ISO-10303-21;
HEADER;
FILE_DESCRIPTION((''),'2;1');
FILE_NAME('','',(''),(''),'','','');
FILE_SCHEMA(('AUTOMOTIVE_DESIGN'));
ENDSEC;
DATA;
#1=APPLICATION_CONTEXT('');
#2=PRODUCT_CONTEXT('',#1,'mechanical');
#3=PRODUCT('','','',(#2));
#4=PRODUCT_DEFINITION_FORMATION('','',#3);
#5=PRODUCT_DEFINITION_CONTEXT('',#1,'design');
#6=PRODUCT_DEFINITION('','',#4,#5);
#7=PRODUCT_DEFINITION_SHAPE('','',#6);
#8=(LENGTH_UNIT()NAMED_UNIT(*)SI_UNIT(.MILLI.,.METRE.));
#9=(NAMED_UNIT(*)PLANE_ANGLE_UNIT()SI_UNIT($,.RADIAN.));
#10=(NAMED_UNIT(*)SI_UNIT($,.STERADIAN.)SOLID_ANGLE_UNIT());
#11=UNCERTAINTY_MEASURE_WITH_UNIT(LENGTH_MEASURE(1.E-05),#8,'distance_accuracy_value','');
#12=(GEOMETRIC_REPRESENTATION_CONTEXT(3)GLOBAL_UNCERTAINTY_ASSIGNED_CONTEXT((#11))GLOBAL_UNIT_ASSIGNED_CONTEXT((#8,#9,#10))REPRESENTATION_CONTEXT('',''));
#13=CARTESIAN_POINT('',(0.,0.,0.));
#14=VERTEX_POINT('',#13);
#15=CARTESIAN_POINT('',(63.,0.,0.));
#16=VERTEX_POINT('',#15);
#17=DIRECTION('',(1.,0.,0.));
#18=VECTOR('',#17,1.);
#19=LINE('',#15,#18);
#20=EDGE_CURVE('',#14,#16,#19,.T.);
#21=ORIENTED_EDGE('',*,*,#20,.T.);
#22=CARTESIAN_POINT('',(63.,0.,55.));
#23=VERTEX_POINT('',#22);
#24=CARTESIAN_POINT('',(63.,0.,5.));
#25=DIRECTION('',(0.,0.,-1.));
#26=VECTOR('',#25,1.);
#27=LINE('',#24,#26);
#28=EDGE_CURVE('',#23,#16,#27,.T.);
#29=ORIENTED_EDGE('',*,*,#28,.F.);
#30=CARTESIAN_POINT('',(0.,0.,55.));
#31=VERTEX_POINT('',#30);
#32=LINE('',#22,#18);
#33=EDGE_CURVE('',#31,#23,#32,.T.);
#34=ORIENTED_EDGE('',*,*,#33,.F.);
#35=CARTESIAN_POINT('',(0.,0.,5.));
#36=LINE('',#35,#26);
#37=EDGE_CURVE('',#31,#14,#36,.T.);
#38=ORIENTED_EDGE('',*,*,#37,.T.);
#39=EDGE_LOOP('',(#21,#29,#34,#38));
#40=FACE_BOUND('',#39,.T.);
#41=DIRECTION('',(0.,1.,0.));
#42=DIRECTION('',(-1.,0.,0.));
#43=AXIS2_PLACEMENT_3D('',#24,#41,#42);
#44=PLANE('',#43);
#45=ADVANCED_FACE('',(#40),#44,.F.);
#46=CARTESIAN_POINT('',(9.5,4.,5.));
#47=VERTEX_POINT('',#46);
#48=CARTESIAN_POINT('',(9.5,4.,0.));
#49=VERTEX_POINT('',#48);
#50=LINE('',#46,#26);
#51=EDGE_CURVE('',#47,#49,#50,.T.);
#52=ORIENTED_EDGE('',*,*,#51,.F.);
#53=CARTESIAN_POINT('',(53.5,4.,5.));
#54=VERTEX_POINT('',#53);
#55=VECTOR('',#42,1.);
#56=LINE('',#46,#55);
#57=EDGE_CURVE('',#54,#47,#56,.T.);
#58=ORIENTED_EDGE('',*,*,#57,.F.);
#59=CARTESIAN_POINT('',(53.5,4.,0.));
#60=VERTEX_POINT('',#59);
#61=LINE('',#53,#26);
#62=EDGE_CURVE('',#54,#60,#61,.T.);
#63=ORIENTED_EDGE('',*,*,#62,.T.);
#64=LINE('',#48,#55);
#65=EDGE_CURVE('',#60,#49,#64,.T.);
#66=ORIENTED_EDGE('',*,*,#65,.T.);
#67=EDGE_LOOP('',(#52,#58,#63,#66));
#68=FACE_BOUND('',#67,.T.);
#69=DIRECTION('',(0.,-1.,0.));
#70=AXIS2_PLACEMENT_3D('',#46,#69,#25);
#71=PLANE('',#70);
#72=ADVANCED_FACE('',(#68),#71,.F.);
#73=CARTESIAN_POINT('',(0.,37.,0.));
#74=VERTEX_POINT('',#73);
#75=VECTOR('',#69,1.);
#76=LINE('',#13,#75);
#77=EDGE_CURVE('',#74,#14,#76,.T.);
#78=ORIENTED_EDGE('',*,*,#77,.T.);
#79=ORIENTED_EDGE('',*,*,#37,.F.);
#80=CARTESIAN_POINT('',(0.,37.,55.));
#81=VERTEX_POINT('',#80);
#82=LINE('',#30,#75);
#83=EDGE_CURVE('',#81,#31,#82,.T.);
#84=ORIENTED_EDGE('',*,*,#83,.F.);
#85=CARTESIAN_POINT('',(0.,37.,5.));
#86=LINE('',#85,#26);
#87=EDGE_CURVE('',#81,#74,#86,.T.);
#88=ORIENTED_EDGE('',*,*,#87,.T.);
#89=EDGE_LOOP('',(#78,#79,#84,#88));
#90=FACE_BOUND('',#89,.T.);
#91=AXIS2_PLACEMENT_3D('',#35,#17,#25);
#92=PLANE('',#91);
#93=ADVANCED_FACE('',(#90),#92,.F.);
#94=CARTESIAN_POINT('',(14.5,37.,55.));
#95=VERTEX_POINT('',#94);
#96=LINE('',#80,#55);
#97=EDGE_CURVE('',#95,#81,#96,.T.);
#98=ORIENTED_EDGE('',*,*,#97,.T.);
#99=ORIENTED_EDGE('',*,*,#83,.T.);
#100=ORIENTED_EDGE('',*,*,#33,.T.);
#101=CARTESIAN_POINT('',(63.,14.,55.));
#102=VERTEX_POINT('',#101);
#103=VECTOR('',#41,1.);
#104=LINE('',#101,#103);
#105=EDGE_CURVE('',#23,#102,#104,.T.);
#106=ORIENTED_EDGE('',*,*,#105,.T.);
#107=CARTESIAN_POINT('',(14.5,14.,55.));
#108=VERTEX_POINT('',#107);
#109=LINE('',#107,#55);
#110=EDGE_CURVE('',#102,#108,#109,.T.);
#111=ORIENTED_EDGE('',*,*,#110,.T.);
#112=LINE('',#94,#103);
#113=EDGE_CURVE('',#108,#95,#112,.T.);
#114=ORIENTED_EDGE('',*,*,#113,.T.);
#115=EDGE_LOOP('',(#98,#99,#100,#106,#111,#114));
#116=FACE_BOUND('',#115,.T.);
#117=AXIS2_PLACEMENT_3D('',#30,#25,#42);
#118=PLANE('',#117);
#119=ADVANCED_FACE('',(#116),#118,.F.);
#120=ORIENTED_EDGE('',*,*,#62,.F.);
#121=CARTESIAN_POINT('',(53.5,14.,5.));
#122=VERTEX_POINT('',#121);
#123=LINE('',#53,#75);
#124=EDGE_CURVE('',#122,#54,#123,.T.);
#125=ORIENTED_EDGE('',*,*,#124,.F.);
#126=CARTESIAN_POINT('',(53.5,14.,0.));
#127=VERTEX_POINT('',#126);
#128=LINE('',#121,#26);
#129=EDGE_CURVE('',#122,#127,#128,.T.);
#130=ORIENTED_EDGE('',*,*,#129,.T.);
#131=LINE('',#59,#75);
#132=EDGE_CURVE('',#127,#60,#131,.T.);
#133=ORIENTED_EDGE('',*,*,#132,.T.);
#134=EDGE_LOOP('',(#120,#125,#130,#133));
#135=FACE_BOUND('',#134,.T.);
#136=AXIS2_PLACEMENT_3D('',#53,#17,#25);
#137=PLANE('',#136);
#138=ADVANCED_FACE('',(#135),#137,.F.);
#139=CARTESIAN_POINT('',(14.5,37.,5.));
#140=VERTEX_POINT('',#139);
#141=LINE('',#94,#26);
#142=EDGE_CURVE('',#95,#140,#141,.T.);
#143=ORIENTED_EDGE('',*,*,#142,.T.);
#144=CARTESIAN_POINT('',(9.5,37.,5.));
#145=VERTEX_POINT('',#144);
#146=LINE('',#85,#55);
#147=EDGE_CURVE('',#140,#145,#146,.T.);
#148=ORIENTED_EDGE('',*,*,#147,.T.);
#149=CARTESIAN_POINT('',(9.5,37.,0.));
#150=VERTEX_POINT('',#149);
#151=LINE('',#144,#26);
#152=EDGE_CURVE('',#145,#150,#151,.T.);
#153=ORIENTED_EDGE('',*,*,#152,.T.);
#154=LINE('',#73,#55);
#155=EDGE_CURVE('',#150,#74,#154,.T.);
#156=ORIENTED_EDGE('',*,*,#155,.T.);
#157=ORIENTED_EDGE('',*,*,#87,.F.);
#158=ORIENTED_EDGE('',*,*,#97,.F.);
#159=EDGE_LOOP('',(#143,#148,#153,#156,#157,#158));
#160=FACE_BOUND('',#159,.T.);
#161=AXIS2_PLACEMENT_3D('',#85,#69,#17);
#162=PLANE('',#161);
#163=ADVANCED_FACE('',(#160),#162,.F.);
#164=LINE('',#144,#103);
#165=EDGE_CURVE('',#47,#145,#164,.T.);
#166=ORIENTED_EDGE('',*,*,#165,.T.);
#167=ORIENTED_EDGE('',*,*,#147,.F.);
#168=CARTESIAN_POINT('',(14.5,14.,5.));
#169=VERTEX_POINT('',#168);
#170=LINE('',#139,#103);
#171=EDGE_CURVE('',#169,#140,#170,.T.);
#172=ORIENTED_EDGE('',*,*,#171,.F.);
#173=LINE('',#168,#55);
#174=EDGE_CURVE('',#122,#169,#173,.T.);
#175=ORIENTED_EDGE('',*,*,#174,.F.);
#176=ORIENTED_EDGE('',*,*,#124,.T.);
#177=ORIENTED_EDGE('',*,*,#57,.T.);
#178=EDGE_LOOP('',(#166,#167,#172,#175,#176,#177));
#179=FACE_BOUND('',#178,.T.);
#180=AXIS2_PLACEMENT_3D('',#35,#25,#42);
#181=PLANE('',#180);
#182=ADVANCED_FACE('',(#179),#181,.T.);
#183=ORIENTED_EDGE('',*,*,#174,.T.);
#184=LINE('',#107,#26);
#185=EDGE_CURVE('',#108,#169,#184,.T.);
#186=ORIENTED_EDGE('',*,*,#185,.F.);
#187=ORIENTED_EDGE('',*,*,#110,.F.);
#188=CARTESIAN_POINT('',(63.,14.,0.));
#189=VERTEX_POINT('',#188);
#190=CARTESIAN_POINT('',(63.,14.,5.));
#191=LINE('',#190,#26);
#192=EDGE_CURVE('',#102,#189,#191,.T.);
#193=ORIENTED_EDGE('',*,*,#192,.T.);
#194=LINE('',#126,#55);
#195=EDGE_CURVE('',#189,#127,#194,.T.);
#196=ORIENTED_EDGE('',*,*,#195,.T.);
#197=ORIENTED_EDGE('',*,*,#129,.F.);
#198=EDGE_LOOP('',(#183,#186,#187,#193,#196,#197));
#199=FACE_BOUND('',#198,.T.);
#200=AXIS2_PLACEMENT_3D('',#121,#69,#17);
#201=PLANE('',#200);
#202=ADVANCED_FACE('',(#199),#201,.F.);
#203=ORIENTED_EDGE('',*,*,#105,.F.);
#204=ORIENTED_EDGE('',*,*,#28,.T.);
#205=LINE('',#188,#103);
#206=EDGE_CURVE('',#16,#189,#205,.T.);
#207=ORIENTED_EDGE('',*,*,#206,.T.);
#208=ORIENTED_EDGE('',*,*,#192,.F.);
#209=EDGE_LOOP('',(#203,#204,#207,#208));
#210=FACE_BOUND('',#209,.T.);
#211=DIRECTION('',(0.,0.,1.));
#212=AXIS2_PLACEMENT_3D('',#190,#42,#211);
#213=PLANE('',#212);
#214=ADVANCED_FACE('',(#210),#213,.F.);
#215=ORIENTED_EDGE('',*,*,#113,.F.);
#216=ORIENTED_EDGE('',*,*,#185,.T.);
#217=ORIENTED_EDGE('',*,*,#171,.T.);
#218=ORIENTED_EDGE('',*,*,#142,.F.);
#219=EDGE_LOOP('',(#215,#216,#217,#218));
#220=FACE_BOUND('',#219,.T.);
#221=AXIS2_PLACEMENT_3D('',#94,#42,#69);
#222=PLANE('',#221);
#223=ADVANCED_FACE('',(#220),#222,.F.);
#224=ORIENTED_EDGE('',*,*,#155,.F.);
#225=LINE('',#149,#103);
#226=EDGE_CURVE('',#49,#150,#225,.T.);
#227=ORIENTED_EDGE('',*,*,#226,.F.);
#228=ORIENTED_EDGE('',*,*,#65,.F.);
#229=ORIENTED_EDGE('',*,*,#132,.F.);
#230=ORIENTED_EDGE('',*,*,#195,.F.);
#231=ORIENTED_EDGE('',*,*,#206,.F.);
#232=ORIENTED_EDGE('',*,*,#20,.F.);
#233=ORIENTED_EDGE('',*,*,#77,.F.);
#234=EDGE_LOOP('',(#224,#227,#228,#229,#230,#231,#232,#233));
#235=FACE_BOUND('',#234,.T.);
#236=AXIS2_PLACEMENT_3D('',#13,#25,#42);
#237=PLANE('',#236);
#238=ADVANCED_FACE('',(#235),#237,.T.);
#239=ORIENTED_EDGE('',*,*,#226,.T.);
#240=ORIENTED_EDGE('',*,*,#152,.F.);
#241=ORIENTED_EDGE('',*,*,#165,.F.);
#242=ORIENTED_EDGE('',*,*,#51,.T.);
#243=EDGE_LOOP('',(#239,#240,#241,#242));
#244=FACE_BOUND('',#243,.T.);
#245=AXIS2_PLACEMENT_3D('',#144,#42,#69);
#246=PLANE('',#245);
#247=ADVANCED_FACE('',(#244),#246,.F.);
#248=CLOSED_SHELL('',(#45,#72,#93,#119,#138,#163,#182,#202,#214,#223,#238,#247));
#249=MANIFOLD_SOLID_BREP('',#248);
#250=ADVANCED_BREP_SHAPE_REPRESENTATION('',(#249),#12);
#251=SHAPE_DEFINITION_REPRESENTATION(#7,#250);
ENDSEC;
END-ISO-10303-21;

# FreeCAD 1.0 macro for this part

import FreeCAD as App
import Part
import Sketcher

V = App.Vector


def add_polygon(sketch, points):
    """Adds a closed chain of lines whose ends are joined by coincident constraints."""
    first, n = sketch.GeometryCount, len(points)
    for a, b in zip(points, points[1:] + points[:1]):
        sketch.addGeometry(Part.LineSegment(App.Vector(*a, 0), App.Vector(*b, 0)), False)
    for i in range(n):
        sketch.addConstraint(Sketcher.Constraint("Coincident", first + i, 2, first + (i + 1) % n, 1))

doc = App.newDocument("Part")
body = doc.addObject("PartDesign::Body", "Body")

# Sketch on XY plane
sketch1 = body.newObject("Sketcher::SketchObject", "Sketch")
sketch1.AttachmentSupport = (doc.getObject("XY_Plane"), [""])
sketch1.MapMode = "FlatFace"
add_polygon(sketch1, [(0, 37), (0, 0), (63, 0), (63, 14), (54, 14), (54, 4), (10, 4), (10, 37)])  # lines 0-7
sketch1.addConstraint([
    Sketcher.Constraint("Vertical", 0),
    Sketcher.Constraint("Horizontal", 1),
    Sketcher.Constraint("Vertical", 2),
    Sketcher.Constraint("Horizontal", 3),
    Sketcher.Constraint("Vertical", 4),
    Sketcher.Constraint("Horizontal", 5),
    Sketcher.Constraint("Vertical", 6),
    Sketcher.Constraint("Horizontal", 7),
    Sketcher.Constraint("Coincident", 0, 2, -1, 1),
    Sketcher.Constraint("Equal", 3, 7),
    Sketcher.Constraint("DistanceX", 1, 1, 1, 2, 63.0),
    Sketcher.Constraint("DistanceX", 5, 2, 5, 1, 44.0),
    Sketcher.Constraint("DistanceY", 0, 2, 0, 1, 37.0),
    Sketcher.Constraint("DistanceY", 2, 1, 2, 2, 14.0),
    Sketcher.Constraint("DistanceY", 4, 2, 4, 1, 10.0),
])
pad1 = body.newObject("PartDesign::Pad", "Pad")
pad1.Profile = sketch1
pad1.Length = 5

# Sketch on XY plane
sketch2 = body.newObject("Sketcher::SketchObject", "Sketch001")
sketch2.AttachmentSupport = (doc.getObject("XY_Plane"), [""])
sketch2.MapMode = "FlatFace"
sketch2.AttachmentOffset = App.Placement(V(0, 0, 5), App.Rotation())
add_polygon(sketch2, [(14, 37), (0, 37), (0, 0), (63, 0), (63, 14), (14, 14)])  # lines 0-5
sketch2.addConstraint([
    Sketcher.Constraint("Horizontal", 0),
    Sketcher.Constraint("Vertical", 1),
    Sketcher.Constraint("Horizontal", 2),
    Sketcher.Constraint("Vertical", 3),
    Sketcher.Constraint("Horizontal", 4),
    Sketcher.Constraint("Vertical", 5),
    Sketcher.Constraint("Coincident", 1, 2, -1, 1),
    Sketcher.Constraint("DistanceX", 2, 1, 2, 2, 63.0),
    Sketcher.Constraint("DistanceY", 1, 2, 1, 1, 37.0),
    Sketcher.Constraint("DistanceY", 3, 1, 3, 2, 14.0),
    Sketcher.Constraint("DistanceX", 0, 2, 0, 1, 14.5),
])
pad2 = body.newObject("PartDesign::Pad", "Pad001")
pad2.Profile = sketch2
pad2.Length = 50

doc.recompute()
